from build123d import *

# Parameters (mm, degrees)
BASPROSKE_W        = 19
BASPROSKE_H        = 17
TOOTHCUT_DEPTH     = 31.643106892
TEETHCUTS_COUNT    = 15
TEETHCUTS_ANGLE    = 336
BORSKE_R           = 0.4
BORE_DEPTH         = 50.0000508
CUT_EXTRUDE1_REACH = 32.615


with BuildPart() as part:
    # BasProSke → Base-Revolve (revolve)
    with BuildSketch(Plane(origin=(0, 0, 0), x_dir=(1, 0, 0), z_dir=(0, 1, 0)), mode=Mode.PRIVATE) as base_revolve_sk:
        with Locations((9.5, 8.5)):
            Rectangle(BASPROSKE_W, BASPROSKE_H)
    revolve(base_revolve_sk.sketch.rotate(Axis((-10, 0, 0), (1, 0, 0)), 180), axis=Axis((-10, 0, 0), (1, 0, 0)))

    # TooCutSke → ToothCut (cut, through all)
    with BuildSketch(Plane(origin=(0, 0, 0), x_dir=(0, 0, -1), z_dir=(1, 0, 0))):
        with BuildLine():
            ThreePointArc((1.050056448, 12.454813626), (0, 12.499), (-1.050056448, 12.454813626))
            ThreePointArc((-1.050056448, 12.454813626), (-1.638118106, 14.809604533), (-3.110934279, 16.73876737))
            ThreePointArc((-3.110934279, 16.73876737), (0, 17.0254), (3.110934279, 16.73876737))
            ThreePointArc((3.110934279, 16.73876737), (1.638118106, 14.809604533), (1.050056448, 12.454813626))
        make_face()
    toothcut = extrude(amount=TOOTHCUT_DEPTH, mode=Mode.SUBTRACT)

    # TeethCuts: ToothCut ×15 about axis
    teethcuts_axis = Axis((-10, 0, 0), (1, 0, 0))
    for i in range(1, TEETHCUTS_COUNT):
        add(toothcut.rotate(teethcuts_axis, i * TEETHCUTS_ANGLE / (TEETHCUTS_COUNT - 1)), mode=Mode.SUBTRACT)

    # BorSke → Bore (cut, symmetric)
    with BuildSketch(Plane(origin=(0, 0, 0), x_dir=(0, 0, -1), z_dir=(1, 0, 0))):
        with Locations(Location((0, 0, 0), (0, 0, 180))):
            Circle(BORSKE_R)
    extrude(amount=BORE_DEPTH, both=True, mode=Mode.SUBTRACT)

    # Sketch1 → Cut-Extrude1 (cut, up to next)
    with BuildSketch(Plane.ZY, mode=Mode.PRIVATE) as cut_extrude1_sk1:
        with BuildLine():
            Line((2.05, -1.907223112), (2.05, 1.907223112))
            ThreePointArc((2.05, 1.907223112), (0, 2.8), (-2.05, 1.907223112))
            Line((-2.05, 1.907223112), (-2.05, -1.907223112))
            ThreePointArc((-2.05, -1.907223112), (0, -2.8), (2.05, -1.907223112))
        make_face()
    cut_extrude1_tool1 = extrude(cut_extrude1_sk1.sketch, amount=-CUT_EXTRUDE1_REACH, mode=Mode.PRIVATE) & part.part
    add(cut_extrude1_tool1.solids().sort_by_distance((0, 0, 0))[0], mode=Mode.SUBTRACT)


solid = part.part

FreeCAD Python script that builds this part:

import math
import FreeCAD as App
import Part
import Sketcher
from FreeCAD import Vector
Q = App.Units.Quantity


def add_polygon(sketch, points):
    """Adds a closed chain of lines whose ends are joined by coincident constraints."""
    first, n = sketch.GeometryCount, len(points)
    for a, b in zip(points, points[1:] + points[:1]):
        sketch.addGeometry(Part.LineSegment(App.Vector(*a, 0), App.Vector(*b, 0)), False)
    for i in range(n):
        sketch.addConstraint(Sketcher.Constraint("Coincident", first + i, 2, first + (i + 1) % n, 1))

doc = App.newDocument("Part")
body = doc.addObject("PartDesign::Body", "Body")

sketch1 = body.newObject("Sketcher::SketchObject", "Sketch")
sketch1.AttachmentSupport = (doc.getObject("XZ_Plane"), [""])
sketch1.MapMode = "FlatFace"
add_polygon(sketch1, [(0, -17), (0, 0), (19, 0), (19, -17)])
sketch1.addConstraint([
    Sketcher.Constraint("Vertical", 0),
    Sketcher.Constraint("Horizontal", 1),
    Sketcher.Constraint("Vertical", 2),
    Sketcher.Constraint("Horizontal", 3),
    Sketcher.Constraint("Coincident", 0, 2, -1, 1),
    Sketcher.Constraint("DistanceX", 1, 1, 1, 2, Q("19 mm")),
    Sketcher.Constraint("DistanceY", 0, 1, 0, 2, Q("17 mm")),
])
revolution = body.newObject("PartDesign::Revolution", "Revolution")
revolution.Profile = sketch1
revolution.ReferenceAxis = (sketch1, ["H_Axis"])
revolution.Angle = 360

sketch2 = body.newObject("Sketcher::SketchObject", "Sketch001")
sketch2.AttachmentSupport = (doc.getObject("YZ_Plane"), [""])
sketch2.MapMode = "FlatFace"
sketch2.addGeometry([
    Part.ArcOfCircle(Part.Circle(Vector(0, 0, 0), Vector(0, 0, 1), 12.499), math.radians(-4.81917), math.radians(4.81917)),
    Part.ArcOfCircle(Part.Circle(Vector(12.208521, -7.044999, 0), Vector(0, 0, 1), 6), math.radians(40.971042), math.radians(87.647418)),
    Part.ArcOfCircle(Part.Circle(Vector(0, 0, 0), Vector(0, 0, 1), 17.0254), math.radians(-10.528414), math.radians(10.528414)),
    Part.ArcOfCircle(Part.Circle(Vector(12.208521, 7.044999, 0), Vector(0, 0, 1), 6), math.radians(-87.647418), math.radians(-40.971042)),
], False)
sketch2.addConstraint([
    Sketcher.Constraint("Coincident", 0, 1, 1, 2),
    Sketcher.Constraint("Coincident", 1, 1, 2, 1),
    Sketcher.Constraint("Coincident", 2, 2, 3, 2),
    Sketcher.Constraint("Coincident", 3, 1, 0, 2),
    Sketcher.Constraint("Coincident", 0, 3, -1, 1),
    Sketcher.Constraint("Coincident", 2, 3, -1, 1),
    Sketcher.Constraint("Equal", 1, 3),
    Sketcher.Constraint("Symmetric", 1, 3, 3, 3, -1),
    Sketcher.Constraint("Radius", 1, Q("6 mm")),
    Sketcher.Constraint("Radius", 0, Q("12.499 mm")),
    Sketcher.Constraint("Radius", 2, Q("17.0254 mm")),
    Sketcher.Constraint("DistanceY", 1, 3, 3, 3, Q("14.089999 mm")),
    Sketcher.Constraint("DistanceX", -1, 1, 1, 3, Q("12.208521 mm")),
])
pocket1 = body.newObject("PartDesign::Pocket", "Pocket")
pocket1.Profile = sketch2
pocket1.Type = "ThroughAll"
pocket1.Reversed = True
doc.recompute()

polarpattern = body.newObject("PartDesign::PolarPattern", "PolarPattern")
polarpattern.Originals = [pocket1]
polarpattern.Axis = (doc.getObject("X_Axis"), [""])
polarpattern.Angle = 360
polarpattern.Occurrences = 15
body.Tip = polarpattern

sketch3 = body.newObject("Sketcher::SketchObject", "Sketch002")
sketch3.AttachmentSupport = (doc.getObject("YZ_Plane"), [""])
sketch3.MapMode = "FlatFace"
sketch3.addGeometry(Part.Circle(Vector(0, 0, 0), Vector(0, 0, 1), 0.4), False)
sketch3.addConstraint([
    Sketcher.Constraint("Coincident", 0, 3, -1, 1),
    Sketcher.Constraint("Diameter", 0, Q("0.8 mm")),
])
pocket2 = body.newObject("PartDesign::Pocket", "Pocket001")
pocket2.Profile = sketch3
pocket2.Length = 100.000102
pocket2.Midplane = True

sketch4 = body.newObject("Sketcher::SketchObject", "Sketch003")
sketch4.AttachmentSupport = (doc.getObject("YZ_Plane"), [""])
sketch4.MapMode = "FlatFace"
sketch4.addGeometry([
    Part.LineSegment(Vector(-1.907223, 2.05, 0), Vector(1.907223, 2.05, 0)),
    Part.ArcOfCircle(Part.Circle(Vector(0, 0, 0), Vector(0, 0, 1), 2.8), math.radians(-47.066339), math.radians(47.066339)),
    Part.LineSegment(Vector(1.907223, -2.05, 0), Vector(-1.907223, -2.05, 0)),
    Part.ArcOfCircle(Part.Circle(Vector(0, 0, 0), Vector(0, 0, 1), 2.8), math.radians(132.933661), math.radians(227.066339)),
], False)
sketch4.addConstraint([
    Sketcher.Constraint("Coincident", 0, 2, 1, 2),
    Sketcher.Constraint("Coincident", 1, 1, 2, 1),
    Sketcher.Constraint("Coincident", 2, 2, 3, 2),
    Sketcher.Constraint("Coincident", 3, 1, 0, 1),
    Sketcher.Constraint("Horizontal", 0),
    Sketcher.Constraint("Horizontal", 2),
    Sketcher.Constraint("Coincident", 1, 3, -1, 1),
    Sketcher.Constraint("Coincident", 3, 3, -1, 1),
    Sketcher.Constraint("Equal", 1, 3),
    Sketcher.Constraint("Vertical", 0, 2, 1, 1),
    Sketcher.Constraint("Radius", 1, Q("2.8 mm")),
    Sketcher.Constraint("DistanceY", 1, 1, 0, 2, Q("4.1 mm")),
])
pocket3 = body.newObject("PartDesign::Pocket", "Pocket002")
pocket3.Profile = sketch4
pocket3.Length = 19
pocket3.Reversed = True

doc.recompute()
